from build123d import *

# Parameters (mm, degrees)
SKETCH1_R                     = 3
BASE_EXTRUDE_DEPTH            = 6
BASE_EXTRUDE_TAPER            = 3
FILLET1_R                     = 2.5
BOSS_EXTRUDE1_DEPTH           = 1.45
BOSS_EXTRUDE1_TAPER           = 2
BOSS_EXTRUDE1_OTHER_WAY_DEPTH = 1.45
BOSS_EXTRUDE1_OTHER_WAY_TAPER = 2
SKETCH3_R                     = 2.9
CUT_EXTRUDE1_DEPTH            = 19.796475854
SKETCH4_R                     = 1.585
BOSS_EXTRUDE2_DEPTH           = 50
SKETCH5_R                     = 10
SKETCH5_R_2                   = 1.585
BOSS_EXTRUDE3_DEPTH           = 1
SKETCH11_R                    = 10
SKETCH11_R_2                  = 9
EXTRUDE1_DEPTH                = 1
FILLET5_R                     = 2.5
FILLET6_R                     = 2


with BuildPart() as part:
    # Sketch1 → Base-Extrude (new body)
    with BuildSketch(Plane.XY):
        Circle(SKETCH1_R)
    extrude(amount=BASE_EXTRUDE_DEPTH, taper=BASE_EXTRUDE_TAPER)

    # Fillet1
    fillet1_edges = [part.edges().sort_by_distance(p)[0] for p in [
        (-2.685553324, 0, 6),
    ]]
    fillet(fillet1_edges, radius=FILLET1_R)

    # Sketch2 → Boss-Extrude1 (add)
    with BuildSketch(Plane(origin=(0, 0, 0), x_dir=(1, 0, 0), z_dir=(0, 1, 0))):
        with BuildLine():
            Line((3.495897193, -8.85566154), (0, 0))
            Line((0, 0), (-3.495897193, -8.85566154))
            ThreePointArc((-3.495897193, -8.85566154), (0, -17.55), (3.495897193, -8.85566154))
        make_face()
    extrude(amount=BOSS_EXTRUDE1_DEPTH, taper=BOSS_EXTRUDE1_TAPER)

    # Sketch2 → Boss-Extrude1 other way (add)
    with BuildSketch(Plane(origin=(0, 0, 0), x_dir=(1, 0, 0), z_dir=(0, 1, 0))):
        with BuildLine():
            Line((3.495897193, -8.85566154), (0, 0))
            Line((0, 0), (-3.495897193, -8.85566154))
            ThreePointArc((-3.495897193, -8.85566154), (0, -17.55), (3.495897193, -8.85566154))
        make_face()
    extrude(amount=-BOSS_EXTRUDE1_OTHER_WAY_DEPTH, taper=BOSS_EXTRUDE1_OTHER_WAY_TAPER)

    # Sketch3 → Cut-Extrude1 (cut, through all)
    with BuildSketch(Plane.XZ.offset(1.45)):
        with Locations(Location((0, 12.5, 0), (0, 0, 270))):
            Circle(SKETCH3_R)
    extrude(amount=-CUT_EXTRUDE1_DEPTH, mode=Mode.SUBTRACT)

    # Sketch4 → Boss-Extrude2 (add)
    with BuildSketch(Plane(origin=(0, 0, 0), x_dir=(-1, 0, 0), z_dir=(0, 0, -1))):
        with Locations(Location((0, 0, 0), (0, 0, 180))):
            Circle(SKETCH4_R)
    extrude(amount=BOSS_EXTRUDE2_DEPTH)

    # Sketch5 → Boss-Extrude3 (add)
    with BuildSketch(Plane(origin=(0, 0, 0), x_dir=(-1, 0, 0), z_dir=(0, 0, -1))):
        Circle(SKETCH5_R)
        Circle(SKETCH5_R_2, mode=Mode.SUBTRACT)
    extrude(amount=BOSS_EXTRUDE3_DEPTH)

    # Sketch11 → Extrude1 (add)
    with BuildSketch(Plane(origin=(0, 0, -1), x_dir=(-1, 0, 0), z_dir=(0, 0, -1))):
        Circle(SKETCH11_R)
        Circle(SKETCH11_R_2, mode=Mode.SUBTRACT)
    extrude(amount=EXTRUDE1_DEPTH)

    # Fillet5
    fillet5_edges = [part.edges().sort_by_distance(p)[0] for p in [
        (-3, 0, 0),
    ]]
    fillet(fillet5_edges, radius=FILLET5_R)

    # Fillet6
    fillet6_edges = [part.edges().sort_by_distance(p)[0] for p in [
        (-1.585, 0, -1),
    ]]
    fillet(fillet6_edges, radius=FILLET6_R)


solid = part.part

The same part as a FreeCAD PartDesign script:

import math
import FreeCAD as App
import Part
import Sketcher


def edges_at(feature, points):
    """Names of the edges that pass closest to the given points."""
    edges = feature.Shape.Edges
    near = lambda p: min(range(len(edges)), key=lambda i: edges[i].distToShape(Part.Vertex(*p))[0])
    return sorted({f"Edge{near(p) + 1}" for p in points})

doc = App.newDocument("Part")
body = doc.addObject("PartDesign::Body", "Body")

sketch1 = doc.addObject("Sketcher::SketchObject", "Sketch")
body.addObject(sketch1)
sketch1.AttachmentSupport = (doc.XY_Plane, [""])
sketch1.MapMode = "FlatFace"
sketch1.addGeometry(Part.Circle(App.Vector(0, 0, 0), App.Vector(0, 0, 1), 3), False)
sketch1.addConstraint(Sketcher.Constraint("Coincident", 0, 3, -1, 1))
sketch1.addConstraint(Sketcher.Constraint("Diameter", 0, 6.0))
pad1 = doc.addObject("PartDesign::Pad", "Pad")
body.addObject(pad1)
pad1.Profile = sketch1
pad1.Length = 6
pad1.TaperAngle = -3
doc.recompute()

fillet = doc.addObject("PartDesign::Fillet", "Fillet")
body.addObject(fillet)
fillet.Base = (pad1, edges_at(pad1, [(-2.686, 0, 6)]))
fillet.Radius = 2.5

sketch2 = doc.addObject("Sketcher::SketchObject", "Sketch001")
body.addObject(sketch2)
sketch2.AttachmentSupport = (doc.XZ_Plane, [""])
sketch2.MapMode = "FlatFace"
sketch2.addGeometry(Part.LineSegment(App.Vector(3.495897, 8.855662, 0), App.Vector(0, 0, 0)), False)
sketch2.addGeometry(Part.LineSegment(App.Vector(0, 0, 0), App.Vector(-3.495897, 8.855662, 0)), False)
sketch2.addGeometry(Part.ArcOfCircle(Part.Circle(App.Vector(0, 12.5, 0), App.Vector(0, 0, 1), 5.05), math.radians(-46.190974), math.radians(226.190974)), False)
sketch2.addConstraint(Sketcher.Constraint("Coincident", 0, 2, 1, 1))
sketch2.addConstraint(Sketcher.Constraint("Coincident", 1, 2, 2, 2))
sketch2.addConstraint(Sketcher.Constraint("Coincident", 2, 1, 0, 1))
sketch2.addConstraint(Sketcher.Constraint("Coincident", 0, 2, -1, 1))
sketch2.addConstraint(Sketcher.Constraint("Symmetric", 1, 2, 2, 1, -2))
sketch2.addConstraint(Sketcher.Constraint("Radius", 2, 5.05))
sketch2.addConstraint(Sketcher.Constraint("DistanceY", -1, 1, 2, 3, 12.5))
sketch2.addConstraint(Sketcher.Constraint("DistanceY", -1, 1, 1, 2, 8.855662))
pad2 = doc.addObject("PartDesign::Pad", "Pad001")
body.addObject(pad2)
pad2.Profile = sketch2
pad2.Length = 1.45
pad2.Reversed = True
pad2.TaperAngle = -2

sketch3 = doc.addObject("Sketcher::SketchObject", "Sketch002")
body.addObject(sketch3)
sketch3.AttachmentSupport = (doc.XZ_Plane, [""])
sketch3.MapMode = "FlatFace"
sketch3.addGeometry(Part.LineSegment(App.Vector(3.495897, 8.855662, 0), App.Vector(0, 0, 0)), False)
sketch3.addGeometry(Part.LineSegment(App.Vector(0, 0, 0), App.Vector(-3.495897, 8.855662, 0)), False)
sketch3.addGeometry(Part.ArcOfCircle(Part.Circle(App.Vector(0, 12.5, 0), App.Vector(0, 0, 1), 5.05), math.radians(-46.190974), math.radians(226.190974)), False)
sketch3.addConstraint(Sketcher.Constraint("Coincident", 0, 2, 1, 1))
sketch3.addConstraint(Sketcher.Constraint("Coincident", 1, 2, 2, 2))
sketch3.addConstraint(Sketcher.Constraint("Coincident", 2, 1, 0, 1))
sketch3.addConstraint(Sketcher.Constraint("Coincident", 0, 2, -1, 1))
sketch3.addConstraint(Sketcher.Constraint("Symmetric", 1, 2, 2, 1, -2))
sketch3.addConstraint(Sketcher.Constraint("Radius", 2, 5.05))
sketch3.addConstraint(Sketcher.Constraint("DistanceY", -1, 1, 2, 3, 12.5))
sketch3.addConstraint(Sketcher.Constraint("DistanceY", -1, 1, 1, 2, 8.855662))
pad3 = doc.addObject("PartDesign::Pad", "Pad002")
body.addObject(pad3)
pad3.Profile = sketch3
pad3.Length = 1.45
pad3.TaperAngle = -2

sketch4 = doc.addObject("Sketcher::SketchObject", "Sketch003")
body.addObject(sketch4)
sketch4.AttachmentSupport = (doc.XZ_Plane, [""])
sketch4.MapMode = "FlatFace"
sketch4.AttachmentOffset = App.Placement(App.Vector(0, 0, 1.45), App.Rotation())
sketch4.addGeometry(Part.Circle(App.Vector(0, 12.5, 0), App.Vector(0, 0, 1), 2.9), False)
sketch4.addConstraint(Sketcher.Constraint("PointOnObject", 0, 3, -2))
sketch4.addConstraint(Sketcher.Constraint("Diameter", 0, 5.8))
sketch4.addConstraint(Sketcher.Constraint("DistanceY", -1, 1, 0, 3, 12.5))
pocket1 = doc.addObject("PartDesign::Pocket", "Pocket")
body.addObject(pocket1)
pocket1.Profile = sketch4
pocket1.Type = "ThroughAll"

sketch5 = doc.addObject("Sketcher::SketchObject", "Sketch004")
body.addObject(sketch5)
sketch5.AttachmentSupport = (doc.XY_Plane, [""])
sketch5.MapMode = "FlatFace"
sketch5.addGeometry(Part.Circle(App.Vector(0, 0, 0), App.Vector(0, 0, 1), 1.585), False)
sketch5.addConstraint(Sketcher.Constraint("Coincident", 0, 3, -1, 1))
sketch5.addConstraint(Sketcher.Constraint("Diameter", 0, 3.17))
pad4 = doc.addObject("PartDesign::Pad", "Pad003")
body.addObject(pad4)
pad4.Profile = sketch5
pad4.Length = 50
pad4.Reversed = True

sketch6 = doc.addObject("Sketcher::SketchObject", "Sketch005")
body.addObject(sketch6)
sketch6.AttachmentSupport = (doc.XY_Plane, [""])
sketch6.MapMode = "FlatFace"
sketch6.addGeometry(Part.Circle(App.Vector(0, 0, 0), App.Vector(0, 0, 1), 10), False)
sketch6.addGeometry(Part.Circle(App.Vector(0, 0, 0), App.Vector(0, 0, 1), 1.585), False)
sketch6.addConstraint(Sketcher.Constraint("Coincident", 0, 3, -1, 1))
sketch6.addConstraint(Sketcher.Constraint("Coincident", 1, 3, -1, 1))
sketch6.addConstraint(Sketcher.Constraint("Diameter", 0, 20.0))
sketch6.addConstraint(Sketcher.Constraint("Diameter", 1, 3.17))
pad5 = doc.addObject("PartDesign::Pad", "Pad004")
body.addObject(pad5)
pad5.Profile = sketch6
pad5.Length = 1
pad5.Reversed = True

sketch7 = doc.addObject("Sketcher::SketchObject", "Sketch006")
body.addObject(sketch7)
sketch7.AttachmentSupport = (doc.XY_Plane, [""])
sketch7.MapMode = "FlatFace"
sketch7.AttachmentOffset = App.Placement(App.Vector(0, 0, -1), App.Rotation())
sketch7.addGeometry(Part.Circle(App.Vector(0, 0, 0), App.Vector(0, 0, 1), 10), False)
sketch7.addGeometry(Part.Circle(App.Vector(0, 0, 0), App.Vector(0, 0, 1), 9), False)
sketch7.addConstraint(Sketcher.Constraint("Coincident", 0, 3, -1, 1))
sketch7.addConstraint(Sketcher.Constraint("Coincident", 1, 3, -1, 1))
sketch7.addConstraint(Sketcher.Constraint("Diameter", 0, 20.0))
sketch7.addConstraint(Sketcher.Constraint("Diameter", 1, 18.0))
pad6 = doc.addObject("PartDesign::Pad", "Pad005")
body.addObject(pad6)
pad6.Profile = sketch7
pad6.Length = 1
pad6.Reversed = True
doc.recompute()

fillet2 = doc.addObject("PartDesign::Fillet", "Fillet001")
body.addObject(fillet2)
fillet2.Base = (pad6, edges_at(pad6, [(-3, 0, 0)]))
fillet2.Radius = 2.5
doc.recompute()

fillet3 = doc.addObject("PartDesign::Fillet", "Fillet002")
body.addObject(fillet3)
fillet3.Base = (fillet2, edges_at(fillet2, [(-1.585, 0, -1)]))
fillet3.Radius = 2

doc.recompute()
